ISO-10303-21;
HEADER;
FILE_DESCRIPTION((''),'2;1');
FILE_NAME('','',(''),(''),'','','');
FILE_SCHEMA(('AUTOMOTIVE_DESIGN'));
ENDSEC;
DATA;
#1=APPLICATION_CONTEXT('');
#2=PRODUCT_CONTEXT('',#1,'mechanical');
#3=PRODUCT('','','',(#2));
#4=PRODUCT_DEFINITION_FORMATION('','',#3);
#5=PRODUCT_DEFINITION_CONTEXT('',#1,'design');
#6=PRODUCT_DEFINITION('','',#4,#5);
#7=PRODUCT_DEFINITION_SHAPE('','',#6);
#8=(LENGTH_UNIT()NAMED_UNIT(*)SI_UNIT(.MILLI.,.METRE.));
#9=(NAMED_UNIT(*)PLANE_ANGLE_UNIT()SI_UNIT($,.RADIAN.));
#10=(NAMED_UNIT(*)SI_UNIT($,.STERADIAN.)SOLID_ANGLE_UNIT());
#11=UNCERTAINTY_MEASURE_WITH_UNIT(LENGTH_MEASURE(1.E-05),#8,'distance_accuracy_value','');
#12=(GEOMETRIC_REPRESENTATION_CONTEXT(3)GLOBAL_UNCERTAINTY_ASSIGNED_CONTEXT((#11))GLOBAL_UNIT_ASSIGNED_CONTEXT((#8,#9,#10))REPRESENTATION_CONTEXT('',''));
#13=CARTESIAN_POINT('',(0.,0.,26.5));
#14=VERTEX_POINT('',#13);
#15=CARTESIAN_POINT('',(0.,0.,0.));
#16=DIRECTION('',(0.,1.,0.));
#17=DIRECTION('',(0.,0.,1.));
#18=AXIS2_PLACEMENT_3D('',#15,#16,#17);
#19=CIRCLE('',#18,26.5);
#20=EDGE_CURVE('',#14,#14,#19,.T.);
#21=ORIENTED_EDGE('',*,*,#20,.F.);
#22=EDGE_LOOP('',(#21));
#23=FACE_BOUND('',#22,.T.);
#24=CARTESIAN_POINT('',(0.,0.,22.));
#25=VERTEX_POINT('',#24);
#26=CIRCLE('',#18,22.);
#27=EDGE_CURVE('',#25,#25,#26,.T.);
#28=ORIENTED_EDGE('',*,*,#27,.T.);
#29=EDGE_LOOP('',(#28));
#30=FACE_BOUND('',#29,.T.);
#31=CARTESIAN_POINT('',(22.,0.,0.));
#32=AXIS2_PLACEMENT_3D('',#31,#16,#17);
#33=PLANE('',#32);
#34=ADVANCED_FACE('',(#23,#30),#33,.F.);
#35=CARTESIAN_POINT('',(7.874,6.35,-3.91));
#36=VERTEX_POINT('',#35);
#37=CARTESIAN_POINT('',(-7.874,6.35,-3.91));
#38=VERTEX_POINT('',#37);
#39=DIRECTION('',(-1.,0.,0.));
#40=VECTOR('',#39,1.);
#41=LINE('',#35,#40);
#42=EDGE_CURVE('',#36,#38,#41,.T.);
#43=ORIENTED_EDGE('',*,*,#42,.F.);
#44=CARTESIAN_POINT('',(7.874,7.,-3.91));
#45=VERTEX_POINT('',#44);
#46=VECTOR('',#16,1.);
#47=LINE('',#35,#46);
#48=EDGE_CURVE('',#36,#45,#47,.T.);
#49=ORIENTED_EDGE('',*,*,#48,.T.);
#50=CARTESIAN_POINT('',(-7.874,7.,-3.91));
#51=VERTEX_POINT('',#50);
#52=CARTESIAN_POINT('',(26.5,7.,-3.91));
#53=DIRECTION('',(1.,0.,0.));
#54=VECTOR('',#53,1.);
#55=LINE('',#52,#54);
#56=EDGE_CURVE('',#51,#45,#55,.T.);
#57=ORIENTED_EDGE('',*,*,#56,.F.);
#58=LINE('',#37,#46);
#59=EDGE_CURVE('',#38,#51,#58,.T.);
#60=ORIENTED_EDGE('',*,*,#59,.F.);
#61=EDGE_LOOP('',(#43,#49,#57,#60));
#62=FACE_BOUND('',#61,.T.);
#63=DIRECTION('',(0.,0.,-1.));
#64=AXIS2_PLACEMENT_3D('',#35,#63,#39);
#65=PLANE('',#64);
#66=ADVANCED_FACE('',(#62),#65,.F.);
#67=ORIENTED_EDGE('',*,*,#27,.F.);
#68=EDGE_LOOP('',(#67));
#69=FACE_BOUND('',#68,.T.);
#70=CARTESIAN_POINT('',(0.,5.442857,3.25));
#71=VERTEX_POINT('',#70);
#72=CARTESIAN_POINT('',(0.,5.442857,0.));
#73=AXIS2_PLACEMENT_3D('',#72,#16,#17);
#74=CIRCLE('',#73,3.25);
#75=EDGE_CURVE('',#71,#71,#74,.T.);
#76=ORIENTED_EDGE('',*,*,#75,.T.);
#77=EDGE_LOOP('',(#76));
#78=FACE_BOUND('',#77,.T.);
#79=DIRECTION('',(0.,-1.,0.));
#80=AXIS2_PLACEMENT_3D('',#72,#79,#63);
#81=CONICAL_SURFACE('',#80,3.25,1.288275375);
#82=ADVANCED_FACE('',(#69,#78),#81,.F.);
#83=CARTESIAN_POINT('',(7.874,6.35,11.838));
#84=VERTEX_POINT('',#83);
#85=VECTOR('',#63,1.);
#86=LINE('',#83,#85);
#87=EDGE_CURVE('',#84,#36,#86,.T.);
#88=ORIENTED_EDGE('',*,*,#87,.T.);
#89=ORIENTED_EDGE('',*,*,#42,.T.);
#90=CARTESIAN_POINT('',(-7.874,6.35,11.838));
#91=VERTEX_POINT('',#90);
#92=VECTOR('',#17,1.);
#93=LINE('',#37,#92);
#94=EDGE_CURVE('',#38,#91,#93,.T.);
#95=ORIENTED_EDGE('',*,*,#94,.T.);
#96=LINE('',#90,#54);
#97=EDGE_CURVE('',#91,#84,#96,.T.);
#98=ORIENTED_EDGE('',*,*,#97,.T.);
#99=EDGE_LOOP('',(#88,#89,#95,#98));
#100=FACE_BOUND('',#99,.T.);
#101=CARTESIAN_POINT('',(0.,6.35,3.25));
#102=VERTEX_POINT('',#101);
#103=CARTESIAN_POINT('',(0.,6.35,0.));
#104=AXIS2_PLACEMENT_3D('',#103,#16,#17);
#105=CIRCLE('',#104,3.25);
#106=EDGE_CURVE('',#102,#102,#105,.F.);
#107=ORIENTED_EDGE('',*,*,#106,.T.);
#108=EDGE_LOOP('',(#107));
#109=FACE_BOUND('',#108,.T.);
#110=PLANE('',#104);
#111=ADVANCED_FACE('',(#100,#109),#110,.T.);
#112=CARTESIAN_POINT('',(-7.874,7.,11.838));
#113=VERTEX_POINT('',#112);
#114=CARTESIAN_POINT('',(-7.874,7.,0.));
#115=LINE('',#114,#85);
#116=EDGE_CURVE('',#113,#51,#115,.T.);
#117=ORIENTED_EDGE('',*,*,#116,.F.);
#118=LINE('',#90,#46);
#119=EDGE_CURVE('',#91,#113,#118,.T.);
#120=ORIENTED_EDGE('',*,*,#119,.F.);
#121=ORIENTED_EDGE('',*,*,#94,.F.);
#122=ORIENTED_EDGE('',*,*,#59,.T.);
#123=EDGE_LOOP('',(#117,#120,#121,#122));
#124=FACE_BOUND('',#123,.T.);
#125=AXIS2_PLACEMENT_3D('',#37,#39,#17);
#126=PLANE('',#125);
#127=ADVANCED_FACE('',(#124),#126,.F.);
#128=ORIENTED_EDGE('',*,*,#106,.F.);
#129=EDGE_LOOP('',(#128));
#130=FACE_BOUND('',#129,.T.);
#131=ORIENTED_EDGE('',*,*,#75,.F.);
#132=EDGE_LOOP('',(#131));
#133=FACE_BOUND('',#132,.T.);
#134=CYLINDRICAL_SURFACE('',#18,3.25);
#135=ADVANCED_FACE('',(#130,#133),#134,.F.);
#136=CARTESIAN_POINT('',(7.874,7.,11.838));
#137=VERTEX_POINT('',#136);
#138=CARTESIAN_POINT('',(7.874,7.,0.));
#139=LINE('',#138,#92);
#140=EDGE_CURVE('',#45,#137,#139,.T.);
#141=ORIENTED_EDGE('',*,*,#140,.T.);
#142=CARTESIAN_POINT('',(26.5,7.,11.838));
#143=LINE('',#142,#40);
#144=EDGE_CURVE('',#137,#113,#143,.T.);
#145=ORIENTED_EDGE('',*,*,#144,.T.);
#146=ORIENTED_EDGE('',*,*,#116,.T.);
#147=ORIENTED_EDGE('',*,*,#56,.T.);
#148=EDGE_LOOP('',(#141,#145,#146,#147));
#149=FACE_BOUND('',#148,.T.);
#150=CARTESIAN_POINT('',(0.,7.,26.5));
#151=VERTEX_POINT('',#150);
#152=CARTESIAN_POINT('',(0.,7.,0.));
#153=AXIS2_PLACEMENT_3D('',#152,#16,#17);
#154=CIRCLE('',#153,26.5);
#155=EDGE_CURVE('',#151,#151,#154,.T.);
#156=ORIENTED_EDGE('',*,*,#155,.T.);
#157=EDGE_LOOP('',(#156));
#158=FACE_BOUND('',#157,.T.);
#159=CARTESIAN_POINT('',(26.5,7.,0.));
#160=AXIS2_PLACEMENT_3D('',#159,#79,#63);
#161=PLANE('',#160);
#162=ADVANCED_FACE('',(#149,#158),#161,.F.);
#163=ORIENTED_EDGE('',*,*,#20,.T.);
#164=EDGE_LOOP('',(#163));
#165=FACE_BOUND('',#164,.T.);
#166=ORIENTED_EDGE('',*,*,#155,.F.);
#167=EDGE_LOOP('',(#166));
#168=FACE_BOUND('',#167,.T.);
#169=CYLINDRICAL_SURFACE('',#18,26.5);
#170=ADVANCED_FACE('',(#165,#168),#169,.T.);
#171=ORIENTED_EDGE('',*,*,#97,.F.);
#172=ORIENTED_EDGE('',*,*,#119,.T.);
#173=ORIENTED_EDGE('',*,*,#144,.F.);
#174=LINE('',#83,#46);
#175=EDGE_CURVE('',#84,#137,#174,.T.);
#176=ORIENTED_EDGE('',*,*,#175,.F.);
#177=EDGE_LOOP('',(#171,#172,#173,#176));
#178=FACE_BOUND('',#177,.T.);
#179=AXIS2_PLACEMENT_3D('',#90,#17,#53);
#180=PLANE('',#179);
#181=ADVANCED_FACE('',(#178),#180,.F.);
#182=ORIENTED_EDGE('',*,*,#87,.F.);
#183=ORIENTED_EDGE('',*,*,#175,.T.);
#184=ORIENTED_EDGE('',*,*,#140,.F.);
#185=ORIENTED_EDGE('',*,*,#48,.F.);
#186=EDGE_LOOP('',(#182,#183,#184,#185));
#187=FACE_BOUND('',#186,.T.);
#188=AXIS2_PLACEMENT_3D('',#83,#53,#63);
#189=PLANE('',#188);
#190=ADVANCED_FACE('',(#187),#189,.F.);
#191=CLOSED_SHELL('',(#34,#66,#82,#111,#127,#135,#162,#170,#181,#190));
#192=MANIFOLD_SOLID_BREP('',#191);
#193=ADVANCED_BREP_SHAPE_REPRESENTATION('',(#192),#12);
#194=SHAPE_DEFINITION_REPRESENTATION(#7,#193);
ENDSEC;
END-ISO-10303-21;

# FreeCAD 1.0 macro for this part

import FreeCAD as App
import Part
import Sketcher


def add_polygon(sketch, points):
    """Adds a closed chain of lines whose ends are joined by coincident constraints."""
    first, n = sketch.GeometryCount, len(points)
    for a, b in zip(points, points[1:] + points[:1]):
        sketch.addGeometry(Part.LineSegment(App.Vector(*a, 0), App.Vector(*b, 0)), False)
    for i in range(n):
        sketch.addConstraint(Sketcher.Constraint("Coincident", first + i, 2, first + (i + 1) % n, 1))

doc = App.newDocument("Part")
body = doc.addObject("PartDesign::Body", "Body")

# Sketch on XY plane
sketch1 = body.newObject("Sketcher::SketchObject", "Sketch")
sketch1.AttachmentSupport = (doc.getObject("XY_Plane"), [""])
sketch1.MapMode = "FlatFace"
add_polygon(sketch1, [(3.25, 5.442857), (22, 0), (26.5, 0), (26.5, 7), (3.25, 7)])  # lines 0-4
sketch1.addConstraint([
    Sketcher.Constraint("Horizontal", 1),
    Sketcher.Constraint("Vertical", 2),
    Sketcher.Constraint("Horizontal", 3),
    Sketcher.Constraint("Vertical", 4),
    Sketcher.Constraint("PointOnObject", 0, 2, -1),
    Sketcher.Constraint("DistanceY", 2, 1, 2, 2, 7.0),
    Sketcher.Constraint("DistanceX", 1, 1, 1, 2, 4.5),
    Sketcher.Constraint("DistanceX", -1, 1, 0, 2, 22.0),
    Sketcher.Constraint("DistanceX", 3, 2, 3, 1, 23.25),
    Sketcher.Constraint("DistanceY", 4, 2, 4, 1, 1.557143),
])
revolution = body.newObject("PartDesign::Revolution", "Revolution")
revolution.Profile = sketch1
revolution.ReferenceAxis = (sketch1, ["V_Axis"])
revolution.Angle = 360

# Sketch on XZ plane
sketch2 = body.newObject("Sketcher::SketchObject", "Sketch001")
sketch2.AttachmentSupport = (doc.getObject("XZ_Plane"), [""])
sketch2.MapMode = "FlatFace"
sketch2.AttachmentOffset = App.Placement(App.Vector(0, 0, -12.7), App.Rotation())
add_polygon(sketch2, [(-7.874, -3.91), (-7.874, 11.838), (7.874, 11.838), (7.874, -3.91)])  # lines 0-3
sketch2.addConstraint([
    Sketcher.Constraint("Vertical", 0),
    Sketcher.Constraint("Horizontal", 1),
    Sketcher.Constraint("Vertical", 2),
    Sketcher.Constraint("Horizontal", 3),
    Sketcher.Constraint("Equal", 3, 0),
    Sketcher.Constraint("DistanceX", 1, 1, 1, 2, 15.748),
    Sketcher.Constraint("DistanceY", 2, 2, -1, 1, 3.91),
    Sketcher.Constraint("DistanceX", 0, 2, -1, 1, 7.874),
])
pocket1 = body.newObject("PartDesign::Pocket", "Pocket")
pocket1.Profile = sketch2
pocket1.Length = 6.35
pocket1.Reversed = True

doc.recompute()
